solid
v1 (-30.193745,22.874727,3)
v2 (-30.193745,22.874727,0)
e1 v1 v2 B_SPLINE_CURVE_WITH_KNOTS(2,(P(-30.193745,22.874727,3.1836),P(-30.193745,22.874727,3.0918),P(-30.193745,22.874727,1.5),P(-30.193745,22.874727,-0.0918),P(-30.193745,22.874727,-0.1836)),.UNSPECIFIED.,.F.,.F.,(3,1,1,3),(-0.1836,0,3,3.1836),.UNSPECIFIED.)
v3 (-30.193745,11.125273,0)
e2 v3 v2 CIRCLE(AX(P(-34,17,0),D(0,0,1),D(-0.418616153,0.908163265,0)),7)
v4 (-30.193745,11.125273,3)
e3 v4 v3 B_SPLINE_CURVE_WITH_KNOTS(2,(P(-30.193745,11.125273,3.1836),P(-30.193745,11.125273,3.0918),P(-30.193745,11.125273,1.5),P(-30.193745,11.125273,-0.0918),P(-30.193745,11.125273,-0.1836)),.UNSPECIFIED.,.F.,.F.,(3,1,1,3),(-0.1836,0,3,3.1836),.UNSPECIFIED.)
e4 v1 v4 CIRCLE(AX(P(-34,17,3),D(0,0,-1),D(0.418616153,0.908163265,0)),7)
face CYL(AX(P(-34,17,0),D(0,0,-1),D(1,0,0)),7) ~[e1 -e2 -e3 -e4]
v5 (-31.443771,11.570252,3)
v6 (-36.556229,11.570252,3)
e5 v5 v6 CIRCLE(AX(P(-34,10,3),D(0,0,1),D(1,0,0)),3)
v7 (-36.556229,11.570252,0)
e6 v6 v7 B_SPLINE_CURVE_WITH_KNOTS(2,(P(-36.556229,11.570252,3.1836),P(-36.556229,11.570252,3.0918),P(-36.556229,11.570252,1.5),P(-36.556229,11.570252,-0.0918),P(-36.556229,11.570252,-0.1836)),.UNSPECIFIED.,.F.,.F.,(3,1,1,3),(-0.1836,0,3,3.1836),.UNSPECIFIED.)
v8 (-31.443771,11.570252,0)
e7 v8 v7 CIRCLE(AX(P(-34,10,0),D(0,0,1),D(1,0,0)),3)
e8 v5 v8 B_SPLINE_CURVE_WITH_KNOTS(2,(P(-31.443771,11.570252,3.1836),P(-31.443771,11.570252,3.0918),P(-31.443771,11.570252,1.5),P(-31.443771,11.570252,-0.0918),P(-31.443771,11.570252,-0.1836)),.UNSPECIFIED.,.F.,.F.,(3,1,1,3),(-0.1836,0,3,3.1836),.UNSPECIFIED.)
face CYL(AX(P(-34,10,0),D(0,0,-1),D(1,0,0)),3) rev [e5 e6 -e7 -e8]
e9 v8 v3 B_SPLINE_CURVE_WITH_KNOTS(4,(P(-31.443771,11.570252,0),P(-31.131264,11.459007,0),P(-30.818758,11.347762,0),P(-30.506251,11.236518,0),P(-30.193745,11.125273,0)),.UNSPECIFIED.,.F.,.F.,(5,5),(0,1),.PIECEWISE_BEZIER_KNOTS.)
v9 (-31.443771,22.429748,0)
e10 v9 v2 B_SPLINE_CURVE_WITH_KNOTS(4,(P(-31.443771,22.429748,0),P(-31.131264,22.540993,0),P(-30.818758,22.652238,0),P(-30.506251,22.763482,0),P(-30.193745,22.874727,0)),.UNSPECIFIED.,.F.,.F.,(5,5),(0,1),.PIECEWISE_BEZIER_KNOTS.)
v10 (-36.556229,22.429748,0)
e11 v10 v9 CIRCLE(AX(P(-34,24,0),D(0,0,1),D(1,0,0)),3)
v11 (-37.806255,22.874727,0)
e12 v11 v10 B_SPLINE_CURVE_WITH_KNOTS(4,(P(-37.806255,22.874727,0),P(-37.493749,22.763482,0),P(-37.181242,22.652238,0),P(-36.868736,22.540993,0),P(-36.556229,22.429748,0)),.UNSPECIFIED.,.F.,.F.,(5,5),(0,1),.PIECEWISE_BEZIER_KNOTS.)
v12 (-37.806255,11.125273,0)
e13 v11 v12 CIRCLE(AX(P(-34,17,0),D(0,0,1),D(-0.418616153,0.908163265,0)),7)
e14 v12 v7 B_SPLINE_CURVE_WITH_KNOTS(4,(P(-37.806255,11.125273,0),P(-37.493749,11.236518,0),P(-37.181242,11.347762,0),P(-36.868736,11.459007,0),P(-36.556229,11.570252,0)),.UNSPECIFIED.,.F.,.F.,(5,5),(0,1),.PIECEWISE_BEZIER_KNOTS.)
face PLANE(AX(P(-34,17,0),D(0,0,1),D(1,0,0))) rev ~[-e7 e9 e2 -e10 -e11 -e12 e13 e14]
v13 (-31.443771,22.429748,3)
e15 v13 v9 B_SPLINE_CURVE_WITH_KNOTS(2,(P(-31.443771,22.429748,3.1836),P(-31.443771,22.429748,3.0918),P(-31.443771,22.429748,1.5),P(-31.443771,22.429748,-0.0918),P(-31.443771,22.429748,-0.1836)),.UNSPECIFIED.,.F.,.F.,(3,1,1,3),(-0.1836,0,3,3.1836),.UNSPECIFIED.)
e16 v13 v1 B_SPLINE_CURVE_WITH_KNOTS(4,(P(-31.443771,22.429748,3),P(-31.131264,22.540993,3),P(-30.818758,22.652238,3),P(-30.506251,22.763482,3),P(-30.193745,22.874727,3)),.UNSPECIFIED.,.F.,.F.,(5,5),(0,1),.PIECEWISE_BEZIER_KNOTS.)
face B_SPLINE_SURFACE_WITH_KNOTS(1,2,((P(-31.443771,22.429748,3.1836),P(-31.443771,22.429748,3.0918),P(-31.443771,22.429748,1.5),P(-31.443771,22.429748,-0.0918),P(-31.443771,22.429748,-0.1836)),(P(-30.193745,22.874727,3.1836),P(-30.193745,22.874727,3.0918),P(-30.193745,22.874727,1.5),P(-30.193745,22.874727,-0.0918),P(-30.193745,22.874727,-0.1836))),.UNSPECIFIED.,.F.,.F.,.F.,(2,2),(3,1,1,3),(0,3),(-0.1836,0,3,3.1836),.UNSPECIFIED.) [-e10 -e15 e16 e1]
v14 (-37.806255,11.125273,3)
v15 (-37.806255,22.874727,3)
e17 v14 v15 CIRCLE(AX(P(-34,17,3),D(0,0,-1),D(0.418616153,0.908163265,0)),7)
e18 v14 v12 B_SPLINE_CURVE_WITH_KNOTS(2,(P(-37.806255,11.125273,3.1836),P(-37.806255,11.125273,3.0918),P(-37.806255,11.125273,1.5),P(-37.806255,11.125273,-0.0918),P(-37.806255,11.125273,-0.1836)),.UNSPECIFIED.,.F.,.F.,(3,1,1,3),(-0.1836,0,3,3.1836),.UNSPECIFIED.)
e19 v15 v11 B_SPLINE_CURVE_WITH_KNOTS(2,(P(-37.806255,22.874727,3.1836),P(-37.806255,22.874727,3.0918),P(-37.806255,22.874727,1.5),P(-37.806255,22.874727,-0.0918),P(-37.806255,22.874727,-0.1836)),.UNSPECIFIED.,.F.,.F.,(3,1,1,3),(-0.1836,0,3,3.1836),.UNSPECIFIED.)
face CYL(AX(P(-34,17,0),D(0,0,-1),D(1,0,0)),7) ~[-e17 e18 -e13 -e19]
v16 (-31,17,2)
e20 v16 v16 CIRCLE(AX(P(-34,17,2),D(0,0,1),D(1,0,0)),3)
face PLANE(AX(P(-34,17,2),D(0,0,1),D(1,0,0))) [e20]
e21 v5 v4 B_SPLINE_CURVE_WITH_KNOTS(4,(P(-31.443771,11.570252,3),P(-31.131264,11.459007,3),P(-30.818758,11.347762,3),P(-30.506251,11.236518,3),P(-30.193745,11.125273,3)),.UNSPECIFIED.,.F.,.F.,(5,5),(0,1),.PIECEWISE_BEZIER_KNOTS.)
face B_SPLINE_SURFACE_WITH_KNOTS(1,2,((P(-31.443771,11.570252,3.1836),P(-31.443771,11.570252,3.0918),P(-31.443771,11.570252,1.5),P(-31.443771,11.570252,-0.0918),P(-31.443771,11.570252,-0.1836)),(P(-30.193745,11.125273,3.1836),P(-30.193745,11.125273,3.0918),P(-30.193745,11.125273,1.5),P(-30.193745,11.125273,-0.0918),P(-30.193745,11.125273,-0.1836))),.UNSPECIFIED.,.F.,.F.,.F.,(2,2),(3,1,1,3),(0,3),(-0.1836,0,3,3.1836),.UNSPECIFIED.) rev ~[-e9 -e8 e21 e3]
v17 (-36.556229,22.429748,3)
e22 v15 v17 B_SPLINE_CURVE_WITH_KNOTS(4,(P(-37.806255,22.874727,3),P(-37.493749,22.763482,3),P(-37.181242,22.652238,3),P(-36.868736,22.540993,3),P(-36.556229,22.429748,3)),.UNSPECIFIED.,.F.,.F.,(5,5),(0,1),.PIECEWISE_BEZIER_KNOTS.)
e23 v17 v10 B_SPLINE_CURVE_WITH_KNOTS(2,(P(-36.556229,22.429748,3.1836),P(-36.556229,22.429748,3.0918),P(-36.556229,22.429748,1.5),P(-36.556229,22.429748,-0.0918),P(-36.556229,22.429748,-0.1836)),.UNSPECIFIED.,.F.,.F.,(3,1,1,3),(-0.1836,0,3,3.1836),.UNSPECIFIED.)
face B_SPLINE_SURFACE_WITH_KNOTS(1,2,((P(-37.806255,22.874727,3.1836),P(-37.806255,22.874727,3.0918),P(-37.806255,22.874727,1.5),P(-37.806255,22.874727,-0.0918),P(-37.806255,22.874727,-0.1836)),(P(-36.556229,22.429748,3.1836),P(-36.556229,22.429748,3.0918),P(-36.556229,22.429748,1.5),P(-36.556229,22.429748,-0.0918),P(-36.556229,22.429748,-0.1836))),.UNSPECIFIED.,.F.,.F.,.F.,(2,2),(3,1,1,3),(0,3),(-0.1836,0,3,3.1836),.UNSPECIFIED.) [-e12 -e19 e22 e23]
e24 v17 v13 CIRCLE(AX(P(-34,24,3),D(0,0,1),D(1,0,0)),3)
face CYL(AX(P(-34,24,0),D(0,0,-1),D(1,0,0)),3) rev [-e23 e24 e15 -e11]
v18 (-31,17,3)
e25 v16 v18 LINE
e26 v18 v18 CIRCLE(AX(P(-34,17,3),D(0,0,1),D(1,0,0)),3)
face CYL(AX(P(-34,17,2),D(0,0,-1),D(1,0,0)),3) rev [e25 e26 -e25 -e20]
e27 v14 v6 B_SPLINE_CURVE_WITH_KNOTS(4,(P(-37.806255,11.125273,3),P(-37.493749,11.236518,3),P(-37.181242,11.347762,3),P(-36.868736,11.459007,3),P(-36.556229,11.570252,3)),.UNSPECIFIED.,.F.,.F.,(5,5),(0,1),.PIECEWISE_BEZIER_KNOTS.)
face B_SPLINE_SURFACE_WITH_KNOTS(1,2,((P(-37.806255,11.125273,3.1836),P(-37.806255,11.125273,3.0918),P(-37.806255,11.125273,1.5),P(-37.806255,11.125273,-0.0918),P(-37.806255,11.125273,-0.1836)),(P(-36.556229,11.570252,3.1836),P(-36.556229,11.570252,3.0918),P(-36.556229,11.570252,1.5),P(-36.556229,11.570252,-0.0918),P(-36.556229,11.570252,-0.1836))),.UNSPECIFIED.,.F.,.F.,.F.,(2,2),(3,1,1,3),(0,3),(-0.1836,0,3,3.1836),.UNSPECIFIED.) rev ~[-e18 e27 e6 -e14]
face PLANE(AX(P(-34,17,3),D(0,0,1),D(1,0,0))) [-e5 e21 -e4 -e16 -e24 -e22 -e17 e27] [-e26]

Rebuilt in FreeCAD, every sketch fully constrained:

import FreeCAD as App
import Part
import Sketcher


def edges_at(feature, points):
    """Names of the edges that pass closest to the given points."""
    edges = feature.Shape.Edges
    near = lambda p: min(range(len(edges)), key=lambda i: edges[i].distToShape(Part.Vertex(*p))[0])
    return sorted({f"Edge{near(p) + 1}" for p in points})

doc = App.newDocument("Part")
body = doc.addObject("PartDesign::Body", "Body")

sketch1 = body.newObject("Sketcher::SketchObject", "Sketch")
sketch1.AttachmentSupport = (doc.getObject("XY_Plane"), [""])
sketch1.MapMode = "FlatFace"
sketch1.AttachmentOffset = App.Placement(App.Vector(0, 0, -1), App.Rotation())
sketch1.addGeometry(Part.Circle(App.Vector(4, 16, 0), App.Vector(0, 0, 1), 3), False)
sketch1.addConstraint(Sketcher.Constraint("Diameter", 0, 6.0))
sketch1.addConstraint(Sketcher.Constraint("DistanceX", -1, 1, 0, 3, 4.0))
sketch1.addConstraint(Sketcher.Constraint("DistanceY", -1, 1, 0, 3, 16.0))
pad1 = body.newObject("PartDesign::Pad", "Pad")
pad1.Profile = sketch1
pad1.Length = 1
body2 = doc.addObject("PartDesign::Body", "Body001")

sketch2 = body2.newObject("Sketcher::SketchObject", "Sketch001")
sketch2.AttachmentSupport = (doc.getObject("XY_Plane001"), [""])
sketch2.MapMode = "FlatFace"
sketch2.AttachmentOffset = App.Placement(App.Vector(0, 0, -3), App.Rotation())
sketch2.addGeometry(Part.Circle(App.Vector(4, 9, 0), App.Vector(0, 0, 1), 3), False)
sketch2.addConstraint(Sketcher.Constraint("Diameter", 0, 6.0))
sketch2.addConstraint(Sketcher.Constraint("DistanceX", -1, 1, 0, 3, 4.0))
sketch2.addConstraint(Sketcher.Constraint("DistanceY", -1, 1, 0, 3, 9.0))
pad2 = body2.newObject("PartDesign::Pad", "Pad001")
pad2.Profile = sketch2
pad2.Length = 3
body3 = doc.addObject("PartDesign::Body", "Body002")

sketch3 = body3.newObject("Sketcher::SketchObject", "Sketch002")
sketch3.AttachmentSupport = (doc.getObject("XY_Plane002"), [""])
sketch3.MapMode = "FlatFace"
sketch3.AttachmentOffset = App.Placement(App.Vector(0, 0, -3), App.Rotation())
sketch3.addGeometry(Part.Circle(App.Vector(4, 23, 0), App.Vector(0, 0, 1), 3), False)
sketch3.addConstraint(Sketcher.Constraint("Diameter", 0, 6.0))
sketch3.addConstraint(Sketcher.Constraint("DistanceX", -1, 1, 0, 3, 4.0))
sketch3.addConstraint(Sketcher.Constraint("DistanceY", -1, 1, 0, 3, 23.0))
pad3 = body3.newObject("PartDesign::Pad", "Pad002")
pad3.Profile = sketch3
pad3.Length = 3
body4 = doc.addObject("PartDesign::Body", "Body003")

sketch4 = body4.newObject("Sketcher::SketchObject", "Sketch003")
sketch4.AttachmentSupport = (doc.getObject("XY_Plane003"), [""])
sketch4.MapMode = "FlatFace"
sketch4.AttachmentOffset = App.Placement(App.Vector(0, 0, -3), App.Rotation())
sketch4.addGeometry(Part.Circle(App.Vector(4, 16, 0), App.Vector(0, 0, 1), 7), False)
sketch4.addConstraint(Sketcher.Constraint("Diameter", 0, 14.0))
sketch4.addConstraint(Sketcher.Constraint("DistanceX", -1, 1, 0, 3, 4.0))
sketch4.addConstraint(Sketcher.Constraint("DistanceY", -1, 1, 0, 3, 16.0))
pad4 = body4.newObject("PartDesign::Pad", "Pad003")
pad4.Profile = sketch4
pad4.Length = 3
doc.recompute()

boolean = body4.newObject("PartDesign::Boolean", "Boolean")
boolean.Type = "Cut"
boolean.addObjects([body3])
doc.recompute()

boolean2 = body4.newObject("PartDesign::Boolean", "Boolean001")
boolean2.Type = "Cut"
boolean2.addObjects([body2])
doc.recompute()

boolean3 = body4.newObject("PartDesign::Boolean", "Boolean002")
boolean3.Type = "Cut"
boolean3.addObjects([body])
doc.recompute()

chamfer = body4.newObject("PartDesign::Chamfer", "Chamfer")
chamfer.Base = (boolean3, edges_at(boolean3, [
    (6.93, 22.357, -1.5),
    (1.07, 22.357, -1.5),
    (6.93, 9.643, -1.5),
    (1.07, 9.643, -1.5),
]))
chamfer.Size = 1
body5 = doc.addObject("PartDesign::Body", "Body004")
doc.recompute()

body4.Placement = App.Placement(App.Vector(-38, 1, 3), App.Rotation(App.Vector(0, 0, 1), 0))
boolean4 = body5.newObject("PartDesign::Boolean", "Boolean003")
boolean4.Type = "Fuse"
boolean4.addObjects([body4])

doc.recompute()
